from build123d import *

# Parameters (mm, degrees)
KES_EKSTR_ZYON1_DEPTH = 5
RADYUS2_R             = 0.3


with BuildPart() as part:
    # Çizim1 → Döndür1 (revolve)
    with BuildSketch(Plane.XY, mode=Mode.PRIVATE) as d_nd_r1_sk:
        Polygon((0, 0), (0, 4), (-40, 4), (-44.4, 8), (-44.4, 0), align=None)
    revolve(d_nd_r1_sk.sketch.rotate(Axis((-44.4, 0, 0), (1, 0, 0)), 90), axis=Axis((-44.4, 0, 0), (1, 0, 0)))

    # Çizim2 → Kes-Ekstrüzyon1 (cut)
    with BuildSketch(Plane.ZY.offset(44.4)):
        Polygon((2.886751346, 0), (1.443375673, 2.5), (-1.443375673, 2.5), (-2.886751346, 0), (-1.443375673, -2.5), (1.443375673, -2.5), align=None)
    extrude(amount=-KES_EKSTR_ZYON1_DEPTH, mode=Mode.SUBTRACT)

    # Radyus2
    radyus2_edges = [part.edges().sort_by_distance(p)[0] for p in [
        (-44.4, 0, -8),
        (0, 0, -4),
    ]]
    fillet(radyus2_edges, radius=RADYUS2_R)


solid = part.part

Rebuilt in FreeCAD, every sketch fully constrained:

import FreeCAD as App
import Part
import Sketcher
from FreeCAD import Vector
Q = App.Units.Quantity


def edges_at(feature, points):
    """Names of the edges that pass closest to the given points."""
    edges = feature.Shape.Edges
    near = lambda p: min(range(len(edges)), key=lambda i: edges[i].distToShape(Part.Vertex(*p))[0])
    return sorted({f"Edge{near(p) + 1}" for p in points})


def add_polygon(sketch, points):
    """Adds a closed chain of lines whose ends are joined by coincident constraints."""
    first, n = sketch.GeometryCount, len(points)
    for a, b in zip(points, points[1:] + points[:1]):
        sketch.addGeometry(Part.LineSegment(App.Vector(*a, 0), App.Vector(*b, 0)), False)
    for i in range(n):
        sketch.addConstraint(Sketcher.Constraint("Coincident", first + i, 2, first + (i + 1) % n, 1))

doc = App.newDocument("Part")
body = doc.addObject("PartDesign::Body", "Body")

# Sketch on XY plane
sketch1 = doc.addObject("Sketcher::SketchObject", "Sketch")
body.addObject(sketch1)
sketch1.AttachmentSupport = (doc.XY_Plane, [""])
sketch1.MapMode = "FlatFace"
add_polygon(sketch1, [(0, 0), (0, 4), (-40, 4), (-44.4, 8), (-44.4, 0)])  # lines 0-4
sketch1.addConstraint([
    Sketcher.Constraint("Vertical", 0),
    Sketcher.Constraint("Horizontal", 1),
    Sketcher.Constraint("Vertical", 3),
    Sketcher.Constraint("Horizontal", 4),
    Sketcher.Constraint("Coincident", 4, 2, -1, 1),
    Sketcher.Constraint("DistanceX", 1, 2, 1, 1, 40.0),
    Sketcher.Constraint("DistanceY", 0, 1, 0, 2, 4.0),
    Sketcher.Constraint("DistanceY", 3, 2, 3, 1, 8.0),
    Sketcher.Constraint("DistanceX", 4, 1, 4, 2, 44.4),
])
revolution = doc.addObject("PartDesign::Revolution", "Revolution")
body.addObject(revolution)
revolution.Profile = sketch1
revolution.ReferenceAxis = (sketch1, ["H_Axis"])
revolution.Angle = 360

# Sketch on YZ plane
sketch2 = doc.addObject("Sketcher::SketchObject", "Sketch001")
body.addObject(sketch2)
sketch2.AttachmentSupport = (doc.YZ_Plane, [""])
sketch2.MapMode = "FlatFace"
sketch2.AttachmentOffset = App.Placement(Vector(0, 0, -44.4), App.Rotation())
add_polygon(sketch2, [(0, 2.9), (2.5, 1.4), (2.5, -1.4), (0, -2.9), (-2.5, -1.4), (-2.5, 1.4)])  # lines 0-5
sketch2.addConstraint([
    Sketcher.Constraint("Vertical", 1),
    Sketcher.Constraint("Vertical", 4),
    Sketcher.Constraint("Symmetric", 0, 2, 3, 2, -1, 1),
    Sketcher.Constraint("Symmetric", 2, 2, 5, 2, -1, 1),
    Sketcher.Constraint("PointOnObject", 2, 2, -2),
    Sketcher.Constraint("Parallel", 2, 5),
    Sketcher.Constraint("Horizontal", 1, 2, 3, 2),
    Sketcher.Constraint("Angle", 0, Q("-30 deg")),
    Sketcher.Constraint("DistanceX", 3, 2, 1, 2, 5.0),
    Sketcher.Constraint("DistanceY", 1, 2, 1, 1, 2.886751),
])
pocket1 = doc.addObject("PartDesign::Pocket", "Pocket")
body.addObject(pocket1)
pocket1.Profile = sketch2
pocket1.Length = 5
pocket1.Reversed = True
doc.recompute()

fillet = doc.addObject("PartDesign::Fillet", "Fillet")
body.addObject(fillet)
fillet.Base = (pocket1, edges_at(pocket1, [(-44.4, 0, -8), (0, 0, -4)]))
fillet.Radius = 0.3

doc.recompute()
